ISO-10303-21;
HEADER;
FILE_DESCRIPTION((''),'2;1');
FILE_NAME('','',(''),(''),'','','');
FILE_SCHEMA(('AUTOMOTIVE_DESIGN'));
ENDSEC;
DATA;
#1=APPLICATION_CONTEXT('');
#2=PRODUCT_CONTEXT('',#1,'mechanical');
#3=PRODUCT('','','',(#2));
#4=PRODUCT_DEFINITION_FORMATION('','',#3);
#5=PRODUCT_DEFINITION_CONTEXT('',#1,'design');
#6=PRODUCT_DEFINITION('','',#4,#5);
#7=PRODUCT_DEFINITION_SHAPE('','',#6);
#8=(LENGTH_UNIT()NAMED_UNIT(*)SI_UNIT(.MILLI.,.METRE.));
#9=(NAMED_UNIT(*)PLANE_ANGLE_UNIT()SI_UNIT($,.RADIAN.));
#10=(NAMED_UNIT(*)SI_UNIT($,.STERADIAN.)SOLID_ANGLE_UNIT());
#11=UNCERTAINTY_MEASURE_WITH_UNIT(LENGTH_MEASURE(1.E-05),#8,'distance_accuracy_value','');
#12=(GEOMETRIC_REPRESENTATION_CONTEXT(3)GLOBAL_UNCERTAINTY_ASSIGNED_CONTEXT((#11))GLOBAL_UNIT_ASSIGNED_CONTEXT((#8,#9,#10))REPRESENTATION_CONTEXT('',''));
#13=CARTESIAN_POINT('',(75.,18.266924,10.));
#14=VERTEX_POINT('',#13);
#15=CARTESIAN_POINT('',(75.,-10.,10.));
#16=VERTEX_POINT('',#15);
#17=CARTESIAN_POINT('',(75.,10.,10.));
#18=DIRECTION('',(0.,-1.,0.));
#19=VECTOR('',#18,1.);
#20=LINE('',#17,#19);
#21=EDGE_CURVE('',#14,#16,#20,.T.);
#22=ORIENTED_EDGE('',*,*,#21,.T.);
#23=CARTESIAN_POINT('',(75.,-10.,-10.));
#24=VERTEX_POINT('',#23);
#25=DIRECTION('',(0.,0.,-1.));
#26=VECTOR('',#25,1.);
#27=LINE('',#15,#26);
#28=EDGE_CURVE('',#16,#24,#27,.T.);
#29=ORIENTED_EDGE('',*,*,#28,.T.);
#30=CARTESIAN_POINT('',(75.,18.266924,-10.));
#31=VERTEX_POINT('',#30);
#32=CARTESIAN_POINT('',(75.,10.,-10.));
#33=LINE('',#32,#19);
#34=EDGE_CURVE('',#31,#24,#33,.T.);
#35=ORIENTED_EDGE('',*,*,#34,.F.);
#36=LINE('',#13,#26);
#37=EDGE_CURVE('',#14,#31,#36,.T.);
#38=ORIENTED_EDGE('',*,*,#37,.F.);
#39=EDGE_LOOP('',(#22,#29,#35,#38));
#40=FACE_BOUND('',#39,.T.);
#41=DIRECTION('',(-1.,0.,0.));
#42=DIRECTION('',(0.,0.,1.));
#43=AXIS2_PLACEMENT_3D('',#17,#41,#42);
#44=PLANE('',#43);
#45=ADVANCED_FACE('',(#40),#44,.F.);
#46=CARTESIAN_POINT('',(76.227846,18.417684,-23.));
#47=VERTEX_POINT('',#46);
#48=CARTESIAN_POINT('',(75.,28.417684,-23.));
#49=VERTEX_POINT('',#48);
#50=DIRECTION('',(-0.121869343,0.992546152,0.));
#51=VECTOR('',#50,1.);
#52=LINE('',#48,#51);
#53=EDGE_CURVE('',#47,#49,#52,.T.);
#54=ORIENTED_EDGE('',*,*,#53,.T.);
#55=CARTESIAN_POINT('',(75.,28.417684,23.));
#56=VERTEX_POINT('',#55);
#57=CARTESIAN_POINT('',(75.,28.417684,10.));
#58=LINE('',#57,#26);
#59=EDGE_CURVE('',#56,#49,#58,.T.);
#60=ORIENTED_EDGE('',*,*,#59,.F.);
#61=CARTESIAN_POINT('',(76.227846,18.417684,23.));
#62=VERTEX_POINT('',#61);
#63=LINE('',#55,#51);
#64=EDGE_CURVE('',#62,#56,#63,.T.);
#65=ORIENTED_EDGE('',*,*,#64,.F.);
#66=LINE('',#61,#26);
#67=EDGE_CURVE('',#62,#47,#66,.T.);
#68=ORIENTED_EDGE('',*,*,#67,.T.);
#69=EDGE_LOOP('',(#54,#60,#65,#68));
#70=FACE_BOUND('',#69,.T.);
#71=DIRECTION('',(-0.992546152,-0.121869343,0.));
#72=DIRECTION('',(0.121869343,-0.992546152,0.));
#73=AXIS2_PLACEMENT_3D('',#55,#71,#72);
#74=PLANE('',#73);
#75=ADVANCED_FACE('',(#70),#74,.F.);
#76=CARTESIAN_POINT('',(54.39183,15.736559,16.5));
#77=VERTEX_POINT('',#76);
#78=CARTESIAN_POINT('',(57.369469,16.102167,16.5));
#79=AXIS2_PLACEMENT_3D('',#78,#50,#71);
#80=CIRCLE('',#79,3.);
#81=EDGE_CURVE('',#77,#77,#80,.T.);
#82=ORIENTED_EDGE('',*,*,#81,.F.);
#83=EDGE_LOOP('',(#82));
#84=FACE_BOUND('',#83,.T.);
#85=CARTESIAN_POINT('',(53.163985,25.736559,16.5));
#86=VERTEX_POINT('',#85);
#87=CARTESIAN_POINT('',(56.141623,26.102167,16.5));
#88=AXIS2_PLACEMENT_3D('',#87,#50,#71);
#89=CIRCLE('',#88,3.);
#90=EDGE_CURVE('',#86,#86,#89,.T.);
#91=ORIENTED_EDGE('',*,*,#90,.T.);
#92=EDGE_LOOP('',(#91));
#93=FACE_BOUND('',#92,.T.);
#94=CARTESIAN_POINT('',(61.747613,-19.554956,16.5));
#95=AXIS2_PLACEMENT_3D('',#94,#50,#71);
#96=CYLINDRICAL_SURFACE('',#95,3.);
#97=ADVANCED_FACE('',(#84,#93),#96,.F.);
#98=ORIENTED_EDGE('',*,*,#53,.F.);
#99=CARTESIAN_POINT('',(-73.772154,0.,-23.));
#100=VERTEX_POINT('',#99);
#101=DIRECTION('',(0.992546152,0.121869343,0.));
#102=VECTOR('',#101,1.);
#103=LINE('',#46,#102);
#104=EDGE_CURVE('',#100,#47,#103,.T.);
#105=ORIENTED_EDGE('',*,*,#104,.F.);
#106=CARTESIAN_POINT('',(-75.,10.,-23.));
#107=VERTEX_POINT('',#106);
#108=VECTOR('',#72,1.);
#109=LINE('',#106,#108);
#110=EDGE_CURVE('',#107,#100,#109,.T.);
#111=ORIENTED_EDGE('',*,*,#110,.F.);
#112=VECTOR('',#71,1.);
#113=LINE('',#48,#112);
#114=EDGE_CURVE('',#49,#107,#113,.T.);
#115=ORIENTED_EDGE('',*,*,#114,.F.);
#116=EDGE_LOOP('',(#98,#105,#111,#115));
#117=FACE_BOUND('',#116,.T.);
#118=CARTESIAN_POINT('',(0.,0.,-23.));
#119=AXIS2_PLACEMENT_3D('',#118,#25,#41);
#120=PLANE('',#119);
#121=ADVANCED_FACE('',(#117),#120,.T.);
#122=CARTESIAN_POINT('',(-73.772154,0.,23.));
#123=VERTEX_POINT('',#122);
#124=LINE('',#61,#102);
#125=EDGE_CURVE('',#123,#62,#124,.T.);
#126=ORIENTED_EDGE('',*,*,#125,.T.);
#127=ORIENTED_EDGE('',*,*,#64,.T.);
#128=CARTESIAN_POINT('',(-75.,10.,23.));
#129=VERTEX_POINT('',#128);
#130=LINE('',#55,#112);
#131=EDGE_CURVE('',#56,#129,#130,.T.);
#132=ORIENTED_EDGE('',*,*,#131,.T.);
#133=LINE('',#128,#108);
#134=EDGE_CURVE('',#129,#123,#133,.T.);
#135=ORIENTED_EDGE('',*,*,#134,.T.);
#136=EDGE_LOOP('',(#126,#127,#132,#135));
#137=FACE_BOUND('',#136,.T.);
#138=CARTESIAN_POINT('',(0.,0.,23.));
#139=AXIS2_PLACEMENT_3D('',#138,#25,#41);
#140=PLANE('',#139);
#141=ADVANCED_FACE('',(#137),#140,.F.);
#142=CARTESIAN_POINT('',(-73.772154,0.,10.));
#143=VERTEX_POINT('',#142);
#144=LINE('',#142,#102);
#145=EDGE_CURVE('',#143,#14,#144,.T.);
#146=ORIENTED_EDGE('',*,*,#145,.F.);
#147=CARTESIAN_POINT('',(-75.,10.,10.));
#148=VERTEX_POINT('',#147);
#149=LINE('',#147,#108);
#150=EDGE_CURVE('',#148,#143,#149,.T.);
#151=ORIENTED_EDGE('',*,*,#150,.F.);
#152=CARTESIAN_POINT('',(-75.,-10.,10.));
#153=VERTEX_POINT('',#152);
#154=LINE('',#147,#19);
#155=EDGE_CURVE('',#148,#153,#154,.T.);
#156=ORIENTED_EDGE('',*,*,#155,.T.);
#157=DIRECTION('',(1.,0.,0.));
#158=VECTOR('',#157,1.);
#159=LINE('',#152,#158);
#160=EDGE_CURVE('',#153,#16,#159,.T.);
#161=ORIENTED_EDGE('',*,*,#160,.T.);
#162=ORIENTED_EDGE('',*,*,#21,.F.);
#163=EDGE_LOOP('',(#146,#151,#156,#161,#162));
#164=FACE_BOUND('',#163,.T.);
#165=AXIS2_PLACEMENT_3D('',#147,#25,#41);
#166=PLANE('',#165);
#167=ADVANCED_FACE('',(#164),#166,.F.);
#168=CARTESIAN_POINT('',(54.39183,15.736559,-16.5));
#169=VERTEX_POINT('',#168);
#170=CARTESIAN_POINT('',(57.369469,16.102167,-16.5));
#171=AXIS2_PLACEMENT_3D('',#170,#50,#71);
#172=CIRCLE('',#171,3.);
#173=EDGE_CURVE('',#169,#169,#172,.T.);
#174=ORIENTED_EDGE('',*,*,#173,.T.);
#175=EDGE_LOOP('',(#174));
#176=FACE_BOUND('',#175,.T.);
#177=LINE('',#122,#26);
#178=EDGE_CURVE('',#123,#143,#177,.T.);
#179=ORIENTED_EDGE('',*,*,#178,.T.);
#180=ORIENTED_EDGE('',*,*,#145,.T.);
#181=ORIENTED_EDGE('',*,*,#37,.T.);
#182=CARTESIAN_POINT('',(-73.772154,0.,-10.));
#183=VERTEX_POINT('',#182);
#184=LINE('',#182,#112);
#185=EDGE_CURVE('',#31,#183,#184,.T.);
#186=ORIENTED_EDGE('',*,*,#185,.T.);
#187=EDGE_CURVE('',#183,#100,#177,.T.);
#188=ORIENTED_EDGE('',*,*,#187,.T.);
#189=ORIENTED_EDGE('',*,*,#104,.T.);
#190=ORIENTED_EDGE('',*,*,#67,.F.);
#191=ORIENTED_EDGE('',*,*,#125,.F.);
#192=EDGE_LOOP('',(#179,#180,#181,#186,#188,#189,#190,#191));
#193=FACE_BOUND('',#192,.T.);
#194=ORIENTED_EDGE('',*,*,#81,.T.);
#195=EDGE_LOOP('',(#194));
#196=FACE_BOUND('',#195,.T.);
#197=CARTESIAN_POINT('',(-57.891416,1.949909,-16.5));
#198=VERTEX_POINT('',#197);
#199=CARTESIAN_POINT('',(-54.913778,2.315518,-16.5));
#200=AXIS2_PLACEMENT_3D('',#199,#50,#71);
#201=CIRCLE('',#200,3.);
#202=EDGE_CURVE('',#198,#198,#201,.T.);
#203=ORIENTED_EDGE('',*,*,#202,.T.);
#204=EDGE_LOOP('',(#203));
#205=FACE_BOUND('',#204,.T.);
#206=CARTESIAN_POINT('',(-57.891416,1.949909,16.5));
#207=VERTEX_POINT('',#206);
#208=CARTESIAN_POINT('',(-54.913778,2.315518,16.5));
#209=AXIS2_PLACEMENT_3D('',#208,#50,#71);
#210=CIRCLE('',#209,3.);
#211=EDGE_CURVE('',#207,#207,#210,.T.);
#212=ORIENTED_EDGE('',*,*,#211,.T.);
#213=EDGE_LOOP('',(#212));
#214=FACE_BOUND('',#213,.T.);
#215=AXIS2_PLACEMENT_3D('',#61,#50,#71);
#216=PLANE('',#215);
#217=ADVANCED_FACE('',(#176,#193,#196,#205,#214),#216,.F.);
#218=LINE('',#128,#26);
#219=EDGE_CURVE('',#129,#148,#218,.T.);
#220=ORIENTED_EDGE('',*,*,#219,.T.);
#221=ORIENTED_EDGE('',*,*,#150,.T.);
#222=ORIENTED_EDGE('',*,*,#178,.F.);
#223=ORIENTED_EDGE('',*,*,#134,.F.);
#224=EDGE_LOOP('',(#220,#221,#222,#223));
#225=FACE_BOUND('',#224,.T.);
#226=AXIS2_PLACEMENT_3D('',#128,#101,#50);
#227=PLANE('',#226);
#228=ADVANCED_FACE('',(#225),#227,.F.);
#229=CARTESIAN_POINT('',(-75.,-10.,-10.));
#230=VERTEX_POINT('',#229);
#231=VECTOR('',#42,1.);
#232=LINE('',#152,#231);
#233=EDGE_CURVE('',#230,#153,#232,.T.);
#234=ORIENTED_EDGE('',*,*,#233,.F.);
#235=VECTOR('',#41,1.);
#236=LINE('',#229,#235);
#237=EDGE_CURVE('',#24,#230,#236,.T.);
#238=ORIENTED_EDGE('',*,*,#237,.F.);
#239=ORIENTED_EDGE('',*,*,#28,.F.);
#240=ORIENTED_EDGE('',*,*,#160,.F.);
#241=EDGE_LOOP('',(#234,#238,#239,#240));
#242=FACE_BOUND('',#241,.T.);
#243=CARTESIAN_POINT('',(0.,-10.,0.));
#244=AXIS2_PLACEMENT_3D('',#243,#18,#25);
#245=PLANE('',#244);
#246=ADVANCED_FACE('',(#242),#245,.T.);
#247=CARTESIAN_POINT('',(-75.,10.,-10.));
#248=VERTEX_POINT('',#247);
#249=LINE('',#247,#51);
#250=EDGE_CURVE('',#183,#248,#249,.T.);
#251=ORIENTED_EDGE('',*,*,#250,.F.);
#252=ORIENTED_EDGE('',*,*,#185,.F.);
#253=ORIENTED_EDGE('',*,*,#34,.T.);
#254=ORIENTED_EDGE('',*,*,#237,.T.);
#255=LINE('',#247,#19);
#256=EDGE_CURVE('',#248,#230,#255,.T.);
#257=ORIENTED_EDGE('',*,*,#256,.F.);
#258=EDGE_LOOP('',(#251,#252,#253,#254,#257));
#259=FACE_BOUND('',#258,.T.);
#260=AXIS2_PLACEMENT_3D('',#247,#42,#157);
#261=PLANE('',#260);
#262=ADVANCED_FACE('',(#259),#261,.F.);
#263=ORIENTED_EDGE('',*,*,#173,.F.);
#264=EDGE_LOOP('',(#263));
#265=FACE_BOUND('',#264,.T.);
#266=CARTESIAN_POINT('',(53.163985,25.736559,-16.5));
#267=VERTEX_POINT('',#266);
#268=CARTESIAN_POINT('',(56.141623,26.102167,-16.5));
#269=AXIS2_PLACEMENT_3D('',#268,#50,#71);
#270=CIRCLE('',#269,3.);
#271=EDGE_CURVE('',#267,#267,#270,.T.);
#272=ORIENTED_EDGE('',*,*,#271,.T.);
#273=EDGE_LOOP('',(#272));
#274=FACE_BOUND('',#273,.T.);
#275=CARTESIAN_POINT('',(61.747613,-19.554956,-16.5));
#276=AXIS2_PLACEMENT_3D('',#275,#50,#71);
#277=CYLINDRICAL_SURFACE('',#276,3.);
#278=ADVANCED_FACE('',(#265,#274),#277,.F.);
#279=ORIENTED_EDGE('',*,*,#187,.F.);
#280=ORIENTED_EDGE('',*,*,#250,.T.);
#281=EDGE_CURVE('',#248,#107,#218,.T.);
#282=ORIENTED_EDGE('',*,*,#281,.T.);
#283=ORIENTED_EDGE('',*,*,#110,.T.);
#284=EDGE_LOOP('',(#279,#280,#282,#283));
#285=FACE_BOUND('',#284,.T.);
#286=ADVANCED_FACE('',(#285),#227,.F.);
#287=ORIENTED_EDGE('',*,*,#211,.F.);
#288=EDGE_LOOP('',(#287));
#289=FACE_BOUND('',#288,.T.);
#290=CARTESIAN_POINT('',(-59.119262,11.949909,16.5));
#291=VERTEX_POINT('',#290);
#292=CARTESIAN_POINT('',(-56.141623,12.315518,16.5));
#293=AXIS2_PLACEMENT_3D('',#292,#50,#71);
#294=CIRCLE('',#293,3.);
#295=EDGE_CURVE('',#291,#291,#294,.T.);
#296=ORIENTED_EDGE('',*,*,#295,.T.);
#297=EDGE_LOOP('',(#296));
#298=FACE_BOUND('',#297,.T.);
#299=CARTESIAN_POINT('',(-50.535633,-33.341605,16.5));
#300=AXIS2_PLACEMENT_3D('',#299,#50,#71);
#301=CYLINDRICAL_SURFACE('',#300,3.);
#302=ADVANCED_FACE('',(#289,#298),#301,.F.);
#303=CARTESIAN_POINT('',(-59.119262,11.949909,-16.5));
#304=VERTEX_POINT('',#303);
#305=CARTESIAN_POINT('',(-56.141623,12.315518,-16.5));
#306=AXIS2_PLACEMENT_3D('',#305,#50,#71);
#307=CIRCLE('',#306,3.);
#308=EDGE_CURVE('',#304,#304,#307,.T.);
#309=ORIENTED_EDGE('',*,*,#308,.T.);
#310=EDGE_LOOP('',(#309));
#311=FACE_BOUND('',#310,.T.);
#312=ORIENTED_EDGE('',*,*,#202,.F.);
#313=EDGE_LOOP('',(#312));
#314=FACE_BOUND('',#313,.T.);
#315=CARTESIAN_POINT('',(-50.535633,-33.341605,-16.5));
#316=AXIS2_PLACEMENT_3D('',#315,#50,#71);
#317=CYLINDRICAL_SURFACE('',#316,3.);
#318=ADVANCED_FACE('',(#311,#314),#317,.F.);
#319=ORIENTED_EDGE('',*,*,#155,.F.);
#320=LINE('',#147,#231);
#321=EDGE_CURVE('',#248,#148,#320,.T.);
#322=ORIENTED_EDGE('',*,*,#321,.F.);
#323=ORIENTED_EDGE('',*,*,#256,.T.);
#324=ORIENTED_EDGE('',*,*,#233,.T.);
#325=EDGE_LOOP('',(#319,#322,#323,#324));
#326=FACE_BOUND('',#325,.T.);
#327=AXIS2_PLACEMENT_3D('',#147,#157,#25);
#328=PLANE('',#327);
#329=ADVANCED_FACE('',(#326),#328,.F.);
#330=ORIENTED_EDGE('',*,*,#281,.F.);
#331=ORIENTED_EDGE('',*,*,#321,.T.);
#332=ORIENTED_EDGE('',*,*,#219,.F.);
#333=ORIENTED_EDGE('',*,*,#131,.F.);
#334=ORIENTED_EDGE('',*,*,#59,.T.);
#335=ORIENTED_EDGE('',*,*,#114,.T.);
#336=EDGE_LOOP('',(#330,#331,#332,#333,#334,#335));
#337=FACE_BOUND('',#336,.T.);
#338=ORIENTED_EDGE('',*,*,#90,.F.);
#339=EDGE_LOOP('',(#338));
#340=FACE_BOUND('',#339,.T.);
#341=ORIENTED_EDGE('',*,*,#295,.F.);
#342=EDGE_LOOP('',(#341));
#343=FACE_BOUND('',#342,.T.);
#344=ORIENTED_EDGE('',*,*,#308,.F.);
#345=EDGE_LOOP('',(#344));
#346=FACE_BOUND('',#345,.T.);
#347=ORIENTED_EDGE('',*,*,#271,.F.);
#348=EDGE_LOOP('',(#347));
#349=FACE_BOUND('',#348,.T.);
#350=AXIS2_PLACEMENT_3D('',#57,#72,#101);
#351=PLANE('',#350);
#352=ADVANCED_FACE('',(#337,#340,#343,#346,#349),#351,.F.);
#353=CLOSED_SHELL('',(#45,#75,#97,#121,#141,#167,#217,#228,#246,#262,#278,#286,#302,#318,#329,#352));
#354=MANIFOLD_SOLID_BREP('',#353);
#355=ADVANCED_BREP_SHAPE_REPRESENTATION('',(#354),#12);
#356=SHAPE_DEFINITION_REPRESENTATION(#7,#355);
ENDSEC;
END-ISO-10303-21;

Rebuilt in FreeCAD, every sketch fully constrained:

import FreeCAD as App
import Part
import Sketcher

V = App.Vector
Q = App.Units.Quantity


def add_polygon(sketch, points):
    """Adds a closed chain of lines whose ends are joined by coincident constraints."""
    first, n = sketch.GeometryCount, len(points)
    for a, b in zip(points, points[1:] + points[:1]):
        sketch.addGeometry(Part.LineSegment(App.Vector(*a, 0), App.Vector(*b, 0)), False)
    for i in range(n):
        sketch.addConstraint(Sketcher.Constraint("Coincident", first + i, 2, first + (i + 1) % n, 1))

doc = App.newDocument("Part")
body = doc.addObject("PartDesign::Body", "Body")

# Sketch on XZ plane
sketch1 = doc.addObject("Sketcher::SketchObject", "Sketch")
body.addObject(sketch1)
sketch1.AttachmentSupport = (doc.XZ_Plane, [""])
sketch1.MapMode = "FlatFace"
add_polygon(sketch1, [(-75, -10), (-75, 10), (75, 10), (75, -10)])  # lines 0-3
sketch1.addConstraint(Sketcher.Constraint("Vertical", 0))
sketch1.addConstraint(Sketcher.Constraint("Horizontal", 1))
sketch1.addConstraint(Sketcher.Constraint("Vertical", 2))
sketch1.addConstraint(Sketcher.Constraint("Horizontal", 3))
sketch1.addConstraint(Sketcher.Constraint("Symmetric", 0, 2, 2, 2, -1, 1))
sketch1.addConstraint(Sketcher.Constraint("DistanceX", 1, 1, 1, 2, Q("150 mm")))
sketch1.addConstraint(Sketcher.Constraint("DistanceY", 0, 1, 0, 2, Q("20 mm")))
pad1 = doc.addObject("PartDesign::Pad", "Pad")
body.addObject(pad1)
pad1.Profile = sketch1
pad1.Length = 20
pad1.Midplane = True

# Sketch on XY plane
sketch2 = doc.addObject("Sketcher::SketchObject", "Sketch001")
body.addObject(sketch2)
sketch2.AttachmentSupport = (doc.XY_Plane, [""])
sketch2.MapMode = "FlatFace"
add_polygon(sketch2, [(-75, 10), (75, 10), (75, 28.417684)])  # lines 0-2
sketch2.addConstraint(Sketcher.Constraint("Horizontal", 0))
sketch2.addConstraint(Sketcher.Constraint("Vertical", 1))
sketch2.addConstraint(Sketcher.Constraint("DistanceX", 0, 1, 0, 2, Q("150 mm")))
sketch2.addConstraint(Sketcher.Constraint("Angle", 2, Q("-173 deg")))
sketch2.addConstraint(Sketcher.Constraint("DistanceX", -1, 1, 0, 2, Q("75 mm")))
sketch2.addConstraint(Sketcher.Constraint("DistanceY", -1, 1, 0, 2, Q("10 mm")))
pad2 = doc.addObject("PartDesign::Pad", "Pad001")
body.addObject(pad2)
pad2.Profile = sketch2
pad2.Length = 20
pad2.Midplane = True

# Sketch on XY plane
sketch3 = doc.addObject("Sketcher::SketchObject", "Sketch002")
body.addObject(sketch3)
sketch3.AttachmentSupport = (doc.XY_Plane, [""])
sketch3.MapMode = "FlatFace"
add_polygon(sketch3, [(75, 28.417684), (-75, 10), (-73.772154, 0), (76.227846, 18.417684)])  # lines 0-3
sketch3.addConstraint(Sketcher.Constraint("PointOnObject", 1, 2, -1))
sketch3.addConstraint(Sketcher.Constraint("Perpendicular", 0, 1))
sketch3.addConstraint(Sketcher.Constraint("Perpendicular", 1, 2))
sketch3.addConstraint(Sketcher.Constraint("Perpendicular", 2, 3))
sketch3.addConstraint(Sketcher.Constraint("Angle", 0, Q("-173 deg")))
sketch3.addConstraint(Sketcher.Constraint("DistanceX", 0, 2, -1, 1, Q("75 mm")))
sketch3.addConstraint(Sketcher.Constraint("DistanceY", -1, 1, 0, 2, Q("10 mm")))
sketch3.addConstraint(Sketcher.Constraint("DistanceX", -1, 1, 3, 2, Q("75 mm")))
pad3 = doc.addObject("PartDesign::Pad", "Pad002")
body.addObject(pad3)
pad3.Profile = sketch3
pad3.Length = 46
pad3.Midplane = True

# Sketch on an angled plane
sketch4 = doc.addObject("Sketcher::SketchObject", "Sketch003")
body.addObject(sketch4)
sketch4.Placement = App.Placement(V(-2.32352, 18.92355, 0), App.Rotation(V(0.992546152, 0.121869343, 0), V(0, 0, -1.000000001), V(-0.121869343, 0.992546152, 0), "ZXY"))
sketch4.addGeometry(Part.Circle(V(-54.222268, 16.5, 0), V(0, 0, 1), 3), False)
sketch4.addGeometry(Part.Circle(V(58.904206, 16.5, 0), V(0, 0, 1), 3), False)
sketch4.addGeometry(Part.Circle(V(58.904206, -16.5, 0), V(0, 0, 1), 3), False)
sketch4.addGeometry(Part.Circle(V(-54.222268, -16.5, 0), V(0, 0, 1), 3), False)
sketch4.addConstraint(Sketcher.Constraint("Equal", 0, 1))
sketch4.addConstraint(Sketcher.Constraint("Equal", 1, 2))
sketch4.addConstraint(Sketcher.Constraint("Equal", 2, 3))
sketch4.addConstraint(Sketcher.Constraint("Symmetric", 1, 3, 2, 3, -1))
sketch4.addConstraint(Sketcher.Constraint("Symmetric", 0, 3, 3, 3, -1))
sketch4.addConstraint(Sketcher.Constraint("Horizontal", 0, 3, 1, 3))
sketch4.addConstraint(Sketcher.Constraint("Diameter", 0, Q("6 mm")))
sketch4.addConstraint(Sketcher.Constraint("DistanceY", 2, 3, 1, 3, Q("33 mm")))
sketch4.addConstraint(Sketcher.Constraint("DistanceX", 0, 3, -1, 1, Q("54.222268 mm")))
sketch4.addConstraint(Sketcher.Constraint("DistanceX", -1, 1, 1, 3, Q("58.904206 mm")))
pocket1 = doc.addObject("PartDesign::Pocket", "Pocket")
body.addObject(pocket1)
pocket1.Profile = sketch4
pocket1.Length = 46

doc.recompute()
